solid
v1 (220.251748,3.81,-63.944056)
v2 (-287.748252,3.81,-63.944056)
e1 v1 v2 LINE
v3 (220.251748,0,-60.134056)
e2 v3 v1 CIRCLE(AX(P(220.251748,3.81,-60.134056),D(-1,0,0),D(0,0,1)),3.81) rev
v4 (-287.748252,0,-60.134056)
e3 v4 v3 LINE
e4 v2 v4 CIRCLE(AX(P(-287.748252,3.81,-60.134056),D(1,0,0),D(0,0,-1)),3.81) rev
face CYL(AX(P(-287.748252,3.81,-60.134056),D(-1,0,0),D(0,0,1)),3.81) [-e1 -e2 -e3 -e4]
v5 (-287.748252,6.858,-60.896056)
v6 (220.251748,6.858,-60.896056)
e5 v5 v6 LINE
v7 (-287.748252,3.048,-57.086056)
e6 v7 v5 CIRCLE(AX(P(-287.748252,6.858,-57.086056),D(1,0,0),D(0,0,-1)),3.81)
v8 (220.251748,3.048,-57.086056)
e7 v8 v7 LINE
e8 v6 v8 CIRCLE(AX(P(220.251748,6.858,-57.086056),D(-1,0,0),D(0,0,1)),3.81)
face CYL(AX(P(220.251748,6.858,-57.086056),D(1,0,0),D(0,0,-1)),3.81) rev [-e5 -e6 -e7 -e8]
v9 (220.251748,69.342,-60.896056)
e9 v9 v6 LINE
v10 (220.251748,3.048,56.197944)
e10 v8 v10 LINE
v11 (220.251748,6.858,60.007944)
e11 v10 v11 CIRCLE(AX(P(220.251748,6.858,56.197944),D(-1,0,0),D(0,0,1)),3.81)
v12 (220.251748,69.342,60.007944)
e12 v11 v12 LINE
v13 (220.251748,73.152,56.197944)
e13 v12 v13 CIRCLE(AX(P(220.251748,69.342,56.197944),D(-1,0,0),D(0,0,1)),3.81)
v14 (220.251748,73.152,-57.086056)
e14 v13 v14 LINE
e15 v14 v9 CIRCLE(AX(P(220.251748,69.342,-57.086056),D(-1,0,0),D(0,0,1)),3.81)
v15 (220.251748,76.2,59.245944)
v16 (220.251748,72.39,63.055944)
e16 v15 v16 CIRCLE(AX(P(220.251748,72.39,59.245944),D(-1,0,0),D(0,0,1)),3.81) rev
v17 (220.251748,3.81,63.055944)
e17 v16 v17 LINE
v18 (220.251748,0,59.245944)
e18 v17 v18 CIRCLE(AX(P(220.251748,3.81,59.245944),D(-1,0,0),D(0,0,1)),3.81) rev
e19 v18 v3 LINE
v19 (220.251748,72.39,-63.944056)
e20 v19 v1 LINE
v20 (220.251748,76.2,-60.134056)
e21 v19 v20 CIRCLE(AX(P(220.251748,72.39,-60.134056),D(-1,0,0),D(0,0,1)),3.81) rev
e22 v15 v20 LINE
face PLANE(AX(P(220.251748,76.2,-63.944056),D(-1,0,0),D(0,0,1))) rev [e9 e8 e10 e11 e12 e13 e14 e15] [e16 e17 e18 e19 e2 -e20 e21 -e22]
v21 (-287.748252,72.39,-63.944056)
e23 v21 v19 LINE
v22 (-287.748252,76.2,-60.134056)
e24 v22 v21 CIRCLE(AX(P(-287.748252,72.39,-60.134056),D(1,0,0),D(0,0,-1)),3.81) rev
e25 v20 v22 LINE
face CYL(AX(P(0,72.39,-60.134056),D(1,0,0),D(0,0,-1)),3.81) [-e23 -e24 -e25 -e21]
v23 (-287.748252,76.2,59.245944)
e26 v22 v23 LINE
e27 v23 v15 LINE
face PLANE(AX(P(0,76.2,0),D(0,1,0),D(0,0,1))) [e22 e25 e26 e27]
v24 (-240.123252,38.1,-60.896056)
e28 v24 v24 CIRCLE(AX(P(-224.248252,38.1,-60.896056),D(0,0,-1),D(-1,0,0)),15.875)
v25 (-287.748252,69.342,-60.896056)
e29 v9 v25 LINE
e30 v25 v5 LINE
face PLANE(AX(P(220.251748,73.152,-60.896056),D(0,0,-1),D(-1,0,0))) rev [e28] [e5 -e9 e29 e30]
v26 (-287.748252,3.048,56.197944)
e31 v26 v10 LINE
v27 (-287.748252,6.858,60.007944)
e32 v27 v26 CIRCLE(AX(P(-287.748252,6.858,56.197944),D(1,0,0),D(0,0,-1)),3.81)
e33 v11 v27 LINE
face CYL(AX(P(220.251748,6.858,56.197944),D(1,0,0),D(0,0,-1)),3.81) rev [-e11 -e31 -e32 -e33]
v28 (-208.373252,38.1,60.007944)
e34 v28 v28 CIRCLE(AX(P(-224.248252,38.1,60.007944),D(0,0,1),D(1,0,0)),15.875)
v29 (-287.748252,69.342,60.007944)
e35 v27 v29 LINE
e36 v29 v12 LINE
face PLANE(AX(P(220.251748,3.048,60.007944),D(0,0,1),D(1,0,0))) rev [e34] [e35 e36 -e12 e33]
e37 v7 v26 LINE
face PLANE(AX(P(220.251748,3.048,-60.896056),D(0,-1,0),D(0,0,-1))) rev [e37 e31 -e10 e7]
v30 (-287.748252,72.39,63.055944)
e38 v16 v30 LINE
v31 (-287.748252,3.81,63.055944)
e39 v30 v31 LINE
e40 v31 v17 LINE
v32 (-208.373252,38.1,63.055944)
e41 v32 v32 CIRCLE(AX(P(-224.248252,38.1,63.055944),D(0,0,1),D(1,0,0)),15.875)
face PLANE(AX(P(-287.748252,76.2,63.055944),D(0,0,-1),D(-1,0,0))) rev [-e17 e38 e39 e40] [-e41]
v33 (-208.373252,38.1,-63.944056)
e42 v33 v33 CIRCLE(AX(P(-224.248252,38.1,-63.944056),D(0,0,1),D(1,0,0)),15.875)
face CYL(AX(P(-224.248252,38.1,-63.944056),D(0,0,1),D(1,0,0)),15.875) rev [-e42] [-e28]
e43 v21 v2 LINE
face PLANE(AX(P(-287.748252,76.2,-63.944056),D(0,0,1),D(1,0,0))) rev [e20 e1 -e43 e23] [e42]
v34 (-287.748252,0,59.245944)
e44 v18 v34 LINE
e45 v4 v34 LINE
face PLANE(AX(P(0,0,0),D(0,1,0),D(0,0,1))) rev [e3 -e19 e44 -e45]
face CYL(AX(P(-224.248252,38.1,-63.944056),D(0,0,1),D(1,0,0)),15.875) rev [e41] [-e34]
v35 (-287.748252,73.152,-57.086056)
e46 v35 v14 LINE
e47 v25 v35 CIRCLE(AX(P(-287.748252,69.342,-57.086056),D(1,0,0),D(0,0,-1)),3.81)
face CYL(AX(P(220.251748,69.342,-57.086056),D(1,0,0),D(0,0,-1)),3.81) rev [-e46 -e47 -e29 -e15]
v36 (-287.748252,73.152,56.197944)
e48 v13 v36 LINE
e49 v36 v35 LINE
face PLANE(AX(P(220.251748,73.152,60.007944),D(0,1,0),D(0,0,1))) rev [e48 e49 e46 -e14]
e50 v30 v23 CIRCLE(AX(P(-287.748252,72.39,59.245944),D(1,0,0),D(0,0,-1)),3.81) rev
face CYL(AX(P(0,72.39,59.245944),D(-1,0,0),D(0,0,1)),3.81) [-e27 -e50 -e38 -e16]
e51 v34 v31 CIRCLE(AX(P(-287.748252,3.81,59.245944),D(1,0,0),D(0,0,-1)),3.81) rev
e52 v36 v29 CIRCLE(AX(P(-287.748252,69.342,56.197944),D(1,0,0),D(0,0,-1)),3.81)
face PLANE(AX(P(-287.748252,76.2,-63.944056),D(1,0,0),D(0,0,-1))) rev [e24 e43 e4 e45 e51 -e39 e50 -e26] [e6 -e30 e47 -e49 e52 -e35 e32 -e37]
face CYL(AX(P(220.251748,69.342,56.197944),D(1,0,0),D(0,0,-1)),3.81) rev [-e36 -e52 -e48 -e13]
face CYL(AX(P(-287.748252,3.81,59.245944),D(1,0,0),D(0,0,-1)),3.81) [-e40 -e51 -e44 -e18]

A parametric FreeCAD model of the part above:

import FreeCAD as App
import Part
import Sketcher

V = App.Vector
Q = App.Units.Quantity


def edges_at(feature, points):
    """Names of the edges that pass closest to the given points."""
    edges = feature.Shape.Edges
    near = lambda p: min(range(len(edges)), key=lambda i: edges[i].distToShape(Part.Vertex(*p))[0])
    return sorted({f"Edge{near(p) + 1}" for p in points})


def add_polygon(sketch, points):
    """Adds a closed chain of lines whose ends are joined by coincident constraints."""
    first, n = sketch.GeometryCount, len(points)
    for a, b in zip(points, points[1:] + points[:1]):
        sketch.addGeometry(Part.LineSegment(App.Vector(*a, 0), App.Vector(*b, 0)), False)
    for i in range(n):
        sketch.addConstraint(Sketcher.Constraint("Coincident", first + i, 2, first + (i + 1) % n, 1))

doc = App.newDocument("Part")
params = doc.addObject("Spreadsheet::Sheet", "Params")
for row, (alias, value) in enumerate([
    ("sketch1_width", "20 in"),
    ("sketch1_height", "5 in"),
    ("pad1_length", "3 in"),
    ("sketch2_width", "2.76 in"),
    ("sketch2_height", "4.76 in"),
    ("fillet_radius", "0.15 in"),
    ("sketch3_diameter", "1.25 in"),
], start=1):
    params.set(f"A{row}", alias)
    params.set(f"B{row}", "=" + value)
    params.setAlias(f"B{row}", alias)

body = doc.addObject("PartDesign::Body", "Body")

sketch1 = doc.addObject("Sketcher::SketchObject", "Sketch")
body.addObject(sketch1)
sketch1.AttachmentSupport = (doc.XZ_Plane, [""])
sketch1.MapMode = "FlatFace"
add_polygon(sketch1, [(-288, -64), (-288, 63), (220, 63), (220, -64)])
sketch1.addConstraint([
    Sketcher.Constraint("Vertical", 0),
    Sketcher.Constraint("Horizontal", 1),
    Sketcher.Constraint("Vertical", 2),
    Sketcher.Constraint("Horizontal", 3),
    Sketcher.Constraint("DistanceX", 1, 1, 1, 2, Q("20 in")),
    Sketcher.Constraint("DistanceY", 0, 1, 0, 2, Q("5 in")),
    Sketcher.Constraint("DistanceX", 0, 2, -1, 1, 287.748252),
    Sketcher.Constraint("DistanceY", -1, 1, 0, 2, 63.055944),
])
sketch1.setExpression("Constraints[8]", "Params.sketch1_width")
sketch1.setExpression("Constraints[9]", "Params.sketch1_height")
pad1 = doc.addObject("PartDesign::Pad", "Pad")
body.addObject(pad1)
pad1.Profile = sketch1
pad1.setExpression("Length", "Params.pad1_length")
pad1.Reversed = True

sketch2 = doc.addObject("Sketcher::SketchObject", "Sketch001")
body.addObject(sketch2)
sketch2.AttachmentSupport = (doc.YZ_Plane, [""])
sketch2.MapMode = "FlatFace"
sketch2.AttachmentOffset = App.Placement(V(0, 0, -287.748252), App.Rotation())
add_polygon(sketch2, [(73, -61), (3, -61), (3, 60), (73, 60)])
sketch2.addConstraint([
    Sketcher.Constraint("Horizontal", 0),
    Sketcher.Constraint("Vertical", 1),
    Sketcher.Constraint("Horizontal", 2),
    Sketcher.Constraint("Vertical", 3),
    Sketcher.Constraint("DistanceX", 0, 2, 0, 1, Q("2.76 in")),
    Sketcher.Constraint("DistanceY", 1, 1, 1, 2, Q("4.76 in")),
    Sketcher.Constraint("DistanceX", -1, 1, 0, 2, Q("0.12 in")),
    Sketcher.Constraint("DistanceY", 0, 2, -1, 1, 60.896056),
])
sketch2.setExpression("Constraints[8]", "Params.sketch2_width")
sketch2.setExpression("Constraints[9]", "Params.sketch2_height")
pocket1 = doc.addObject("PartDesign::Pocket", "Pocket")
body.addObject(pocket1)
pocket1.Profile = sketch2
pocket1.Type = "ThroughAll"
pocket1.Reversed = True
doc.recompute()

fillet = doc.addObject("PartDesign::Fillet", "Fillet")
body.addObject(fillet)
fillet.Base = (pocket1, edges_at(pocket1, [
    (-33.748, 76.2, -63.944),
    (-33.748, 3.048, -60.896),
    (-33.748, 73.152, -60.896),
    (-33.748, 73.152, 60.008),
    (-33.748, 3.048, 60.008),
    (-33.748, 0, -63.944),
    (-33.748, 0, 63.056),
    (-33.748, 76.2, 63.056),
]))
fillet.setExpression("Radius", "Params.fillet_radius")

sketch3 = doc.addObject("Sketcher::SketchObject", "Sketch002")
body.addObject(sketch3)
sketch3.AttachmentSupport = (doc.XY_Plane, [""])
sketch3.MapMode = "FlatFace"
sketch3.AttachmentOffset = App.Placement(V(0, 0, 63.055944), App.Rotation())
sketch3.addGeometry(Part.Circle(V(-224, 38, 0), V(0, 0, 1), 16), False)
sketch3.addConstraint([
    Sketcher.Constraint("Diameter", 0, Q("1.25 in")),
    Sketcher.Constraint("DistanceY", -1, 1, 0, 3, Q("1.5 in")),
    Sketcher.Constraint("DistanceX", 0, 3, -1, 1, 224.248252),
])
sketch3.setExpression("Constraints[0]", "Params.sketch3_diameter")
pocket2 = doc.addObject("PartDesign::Pocket", "Pocket001")
body.addObject(pocket2)
pocket2.Profile = sketch3
pocket2.Type = "ThroughAll"

doc.recompute()
